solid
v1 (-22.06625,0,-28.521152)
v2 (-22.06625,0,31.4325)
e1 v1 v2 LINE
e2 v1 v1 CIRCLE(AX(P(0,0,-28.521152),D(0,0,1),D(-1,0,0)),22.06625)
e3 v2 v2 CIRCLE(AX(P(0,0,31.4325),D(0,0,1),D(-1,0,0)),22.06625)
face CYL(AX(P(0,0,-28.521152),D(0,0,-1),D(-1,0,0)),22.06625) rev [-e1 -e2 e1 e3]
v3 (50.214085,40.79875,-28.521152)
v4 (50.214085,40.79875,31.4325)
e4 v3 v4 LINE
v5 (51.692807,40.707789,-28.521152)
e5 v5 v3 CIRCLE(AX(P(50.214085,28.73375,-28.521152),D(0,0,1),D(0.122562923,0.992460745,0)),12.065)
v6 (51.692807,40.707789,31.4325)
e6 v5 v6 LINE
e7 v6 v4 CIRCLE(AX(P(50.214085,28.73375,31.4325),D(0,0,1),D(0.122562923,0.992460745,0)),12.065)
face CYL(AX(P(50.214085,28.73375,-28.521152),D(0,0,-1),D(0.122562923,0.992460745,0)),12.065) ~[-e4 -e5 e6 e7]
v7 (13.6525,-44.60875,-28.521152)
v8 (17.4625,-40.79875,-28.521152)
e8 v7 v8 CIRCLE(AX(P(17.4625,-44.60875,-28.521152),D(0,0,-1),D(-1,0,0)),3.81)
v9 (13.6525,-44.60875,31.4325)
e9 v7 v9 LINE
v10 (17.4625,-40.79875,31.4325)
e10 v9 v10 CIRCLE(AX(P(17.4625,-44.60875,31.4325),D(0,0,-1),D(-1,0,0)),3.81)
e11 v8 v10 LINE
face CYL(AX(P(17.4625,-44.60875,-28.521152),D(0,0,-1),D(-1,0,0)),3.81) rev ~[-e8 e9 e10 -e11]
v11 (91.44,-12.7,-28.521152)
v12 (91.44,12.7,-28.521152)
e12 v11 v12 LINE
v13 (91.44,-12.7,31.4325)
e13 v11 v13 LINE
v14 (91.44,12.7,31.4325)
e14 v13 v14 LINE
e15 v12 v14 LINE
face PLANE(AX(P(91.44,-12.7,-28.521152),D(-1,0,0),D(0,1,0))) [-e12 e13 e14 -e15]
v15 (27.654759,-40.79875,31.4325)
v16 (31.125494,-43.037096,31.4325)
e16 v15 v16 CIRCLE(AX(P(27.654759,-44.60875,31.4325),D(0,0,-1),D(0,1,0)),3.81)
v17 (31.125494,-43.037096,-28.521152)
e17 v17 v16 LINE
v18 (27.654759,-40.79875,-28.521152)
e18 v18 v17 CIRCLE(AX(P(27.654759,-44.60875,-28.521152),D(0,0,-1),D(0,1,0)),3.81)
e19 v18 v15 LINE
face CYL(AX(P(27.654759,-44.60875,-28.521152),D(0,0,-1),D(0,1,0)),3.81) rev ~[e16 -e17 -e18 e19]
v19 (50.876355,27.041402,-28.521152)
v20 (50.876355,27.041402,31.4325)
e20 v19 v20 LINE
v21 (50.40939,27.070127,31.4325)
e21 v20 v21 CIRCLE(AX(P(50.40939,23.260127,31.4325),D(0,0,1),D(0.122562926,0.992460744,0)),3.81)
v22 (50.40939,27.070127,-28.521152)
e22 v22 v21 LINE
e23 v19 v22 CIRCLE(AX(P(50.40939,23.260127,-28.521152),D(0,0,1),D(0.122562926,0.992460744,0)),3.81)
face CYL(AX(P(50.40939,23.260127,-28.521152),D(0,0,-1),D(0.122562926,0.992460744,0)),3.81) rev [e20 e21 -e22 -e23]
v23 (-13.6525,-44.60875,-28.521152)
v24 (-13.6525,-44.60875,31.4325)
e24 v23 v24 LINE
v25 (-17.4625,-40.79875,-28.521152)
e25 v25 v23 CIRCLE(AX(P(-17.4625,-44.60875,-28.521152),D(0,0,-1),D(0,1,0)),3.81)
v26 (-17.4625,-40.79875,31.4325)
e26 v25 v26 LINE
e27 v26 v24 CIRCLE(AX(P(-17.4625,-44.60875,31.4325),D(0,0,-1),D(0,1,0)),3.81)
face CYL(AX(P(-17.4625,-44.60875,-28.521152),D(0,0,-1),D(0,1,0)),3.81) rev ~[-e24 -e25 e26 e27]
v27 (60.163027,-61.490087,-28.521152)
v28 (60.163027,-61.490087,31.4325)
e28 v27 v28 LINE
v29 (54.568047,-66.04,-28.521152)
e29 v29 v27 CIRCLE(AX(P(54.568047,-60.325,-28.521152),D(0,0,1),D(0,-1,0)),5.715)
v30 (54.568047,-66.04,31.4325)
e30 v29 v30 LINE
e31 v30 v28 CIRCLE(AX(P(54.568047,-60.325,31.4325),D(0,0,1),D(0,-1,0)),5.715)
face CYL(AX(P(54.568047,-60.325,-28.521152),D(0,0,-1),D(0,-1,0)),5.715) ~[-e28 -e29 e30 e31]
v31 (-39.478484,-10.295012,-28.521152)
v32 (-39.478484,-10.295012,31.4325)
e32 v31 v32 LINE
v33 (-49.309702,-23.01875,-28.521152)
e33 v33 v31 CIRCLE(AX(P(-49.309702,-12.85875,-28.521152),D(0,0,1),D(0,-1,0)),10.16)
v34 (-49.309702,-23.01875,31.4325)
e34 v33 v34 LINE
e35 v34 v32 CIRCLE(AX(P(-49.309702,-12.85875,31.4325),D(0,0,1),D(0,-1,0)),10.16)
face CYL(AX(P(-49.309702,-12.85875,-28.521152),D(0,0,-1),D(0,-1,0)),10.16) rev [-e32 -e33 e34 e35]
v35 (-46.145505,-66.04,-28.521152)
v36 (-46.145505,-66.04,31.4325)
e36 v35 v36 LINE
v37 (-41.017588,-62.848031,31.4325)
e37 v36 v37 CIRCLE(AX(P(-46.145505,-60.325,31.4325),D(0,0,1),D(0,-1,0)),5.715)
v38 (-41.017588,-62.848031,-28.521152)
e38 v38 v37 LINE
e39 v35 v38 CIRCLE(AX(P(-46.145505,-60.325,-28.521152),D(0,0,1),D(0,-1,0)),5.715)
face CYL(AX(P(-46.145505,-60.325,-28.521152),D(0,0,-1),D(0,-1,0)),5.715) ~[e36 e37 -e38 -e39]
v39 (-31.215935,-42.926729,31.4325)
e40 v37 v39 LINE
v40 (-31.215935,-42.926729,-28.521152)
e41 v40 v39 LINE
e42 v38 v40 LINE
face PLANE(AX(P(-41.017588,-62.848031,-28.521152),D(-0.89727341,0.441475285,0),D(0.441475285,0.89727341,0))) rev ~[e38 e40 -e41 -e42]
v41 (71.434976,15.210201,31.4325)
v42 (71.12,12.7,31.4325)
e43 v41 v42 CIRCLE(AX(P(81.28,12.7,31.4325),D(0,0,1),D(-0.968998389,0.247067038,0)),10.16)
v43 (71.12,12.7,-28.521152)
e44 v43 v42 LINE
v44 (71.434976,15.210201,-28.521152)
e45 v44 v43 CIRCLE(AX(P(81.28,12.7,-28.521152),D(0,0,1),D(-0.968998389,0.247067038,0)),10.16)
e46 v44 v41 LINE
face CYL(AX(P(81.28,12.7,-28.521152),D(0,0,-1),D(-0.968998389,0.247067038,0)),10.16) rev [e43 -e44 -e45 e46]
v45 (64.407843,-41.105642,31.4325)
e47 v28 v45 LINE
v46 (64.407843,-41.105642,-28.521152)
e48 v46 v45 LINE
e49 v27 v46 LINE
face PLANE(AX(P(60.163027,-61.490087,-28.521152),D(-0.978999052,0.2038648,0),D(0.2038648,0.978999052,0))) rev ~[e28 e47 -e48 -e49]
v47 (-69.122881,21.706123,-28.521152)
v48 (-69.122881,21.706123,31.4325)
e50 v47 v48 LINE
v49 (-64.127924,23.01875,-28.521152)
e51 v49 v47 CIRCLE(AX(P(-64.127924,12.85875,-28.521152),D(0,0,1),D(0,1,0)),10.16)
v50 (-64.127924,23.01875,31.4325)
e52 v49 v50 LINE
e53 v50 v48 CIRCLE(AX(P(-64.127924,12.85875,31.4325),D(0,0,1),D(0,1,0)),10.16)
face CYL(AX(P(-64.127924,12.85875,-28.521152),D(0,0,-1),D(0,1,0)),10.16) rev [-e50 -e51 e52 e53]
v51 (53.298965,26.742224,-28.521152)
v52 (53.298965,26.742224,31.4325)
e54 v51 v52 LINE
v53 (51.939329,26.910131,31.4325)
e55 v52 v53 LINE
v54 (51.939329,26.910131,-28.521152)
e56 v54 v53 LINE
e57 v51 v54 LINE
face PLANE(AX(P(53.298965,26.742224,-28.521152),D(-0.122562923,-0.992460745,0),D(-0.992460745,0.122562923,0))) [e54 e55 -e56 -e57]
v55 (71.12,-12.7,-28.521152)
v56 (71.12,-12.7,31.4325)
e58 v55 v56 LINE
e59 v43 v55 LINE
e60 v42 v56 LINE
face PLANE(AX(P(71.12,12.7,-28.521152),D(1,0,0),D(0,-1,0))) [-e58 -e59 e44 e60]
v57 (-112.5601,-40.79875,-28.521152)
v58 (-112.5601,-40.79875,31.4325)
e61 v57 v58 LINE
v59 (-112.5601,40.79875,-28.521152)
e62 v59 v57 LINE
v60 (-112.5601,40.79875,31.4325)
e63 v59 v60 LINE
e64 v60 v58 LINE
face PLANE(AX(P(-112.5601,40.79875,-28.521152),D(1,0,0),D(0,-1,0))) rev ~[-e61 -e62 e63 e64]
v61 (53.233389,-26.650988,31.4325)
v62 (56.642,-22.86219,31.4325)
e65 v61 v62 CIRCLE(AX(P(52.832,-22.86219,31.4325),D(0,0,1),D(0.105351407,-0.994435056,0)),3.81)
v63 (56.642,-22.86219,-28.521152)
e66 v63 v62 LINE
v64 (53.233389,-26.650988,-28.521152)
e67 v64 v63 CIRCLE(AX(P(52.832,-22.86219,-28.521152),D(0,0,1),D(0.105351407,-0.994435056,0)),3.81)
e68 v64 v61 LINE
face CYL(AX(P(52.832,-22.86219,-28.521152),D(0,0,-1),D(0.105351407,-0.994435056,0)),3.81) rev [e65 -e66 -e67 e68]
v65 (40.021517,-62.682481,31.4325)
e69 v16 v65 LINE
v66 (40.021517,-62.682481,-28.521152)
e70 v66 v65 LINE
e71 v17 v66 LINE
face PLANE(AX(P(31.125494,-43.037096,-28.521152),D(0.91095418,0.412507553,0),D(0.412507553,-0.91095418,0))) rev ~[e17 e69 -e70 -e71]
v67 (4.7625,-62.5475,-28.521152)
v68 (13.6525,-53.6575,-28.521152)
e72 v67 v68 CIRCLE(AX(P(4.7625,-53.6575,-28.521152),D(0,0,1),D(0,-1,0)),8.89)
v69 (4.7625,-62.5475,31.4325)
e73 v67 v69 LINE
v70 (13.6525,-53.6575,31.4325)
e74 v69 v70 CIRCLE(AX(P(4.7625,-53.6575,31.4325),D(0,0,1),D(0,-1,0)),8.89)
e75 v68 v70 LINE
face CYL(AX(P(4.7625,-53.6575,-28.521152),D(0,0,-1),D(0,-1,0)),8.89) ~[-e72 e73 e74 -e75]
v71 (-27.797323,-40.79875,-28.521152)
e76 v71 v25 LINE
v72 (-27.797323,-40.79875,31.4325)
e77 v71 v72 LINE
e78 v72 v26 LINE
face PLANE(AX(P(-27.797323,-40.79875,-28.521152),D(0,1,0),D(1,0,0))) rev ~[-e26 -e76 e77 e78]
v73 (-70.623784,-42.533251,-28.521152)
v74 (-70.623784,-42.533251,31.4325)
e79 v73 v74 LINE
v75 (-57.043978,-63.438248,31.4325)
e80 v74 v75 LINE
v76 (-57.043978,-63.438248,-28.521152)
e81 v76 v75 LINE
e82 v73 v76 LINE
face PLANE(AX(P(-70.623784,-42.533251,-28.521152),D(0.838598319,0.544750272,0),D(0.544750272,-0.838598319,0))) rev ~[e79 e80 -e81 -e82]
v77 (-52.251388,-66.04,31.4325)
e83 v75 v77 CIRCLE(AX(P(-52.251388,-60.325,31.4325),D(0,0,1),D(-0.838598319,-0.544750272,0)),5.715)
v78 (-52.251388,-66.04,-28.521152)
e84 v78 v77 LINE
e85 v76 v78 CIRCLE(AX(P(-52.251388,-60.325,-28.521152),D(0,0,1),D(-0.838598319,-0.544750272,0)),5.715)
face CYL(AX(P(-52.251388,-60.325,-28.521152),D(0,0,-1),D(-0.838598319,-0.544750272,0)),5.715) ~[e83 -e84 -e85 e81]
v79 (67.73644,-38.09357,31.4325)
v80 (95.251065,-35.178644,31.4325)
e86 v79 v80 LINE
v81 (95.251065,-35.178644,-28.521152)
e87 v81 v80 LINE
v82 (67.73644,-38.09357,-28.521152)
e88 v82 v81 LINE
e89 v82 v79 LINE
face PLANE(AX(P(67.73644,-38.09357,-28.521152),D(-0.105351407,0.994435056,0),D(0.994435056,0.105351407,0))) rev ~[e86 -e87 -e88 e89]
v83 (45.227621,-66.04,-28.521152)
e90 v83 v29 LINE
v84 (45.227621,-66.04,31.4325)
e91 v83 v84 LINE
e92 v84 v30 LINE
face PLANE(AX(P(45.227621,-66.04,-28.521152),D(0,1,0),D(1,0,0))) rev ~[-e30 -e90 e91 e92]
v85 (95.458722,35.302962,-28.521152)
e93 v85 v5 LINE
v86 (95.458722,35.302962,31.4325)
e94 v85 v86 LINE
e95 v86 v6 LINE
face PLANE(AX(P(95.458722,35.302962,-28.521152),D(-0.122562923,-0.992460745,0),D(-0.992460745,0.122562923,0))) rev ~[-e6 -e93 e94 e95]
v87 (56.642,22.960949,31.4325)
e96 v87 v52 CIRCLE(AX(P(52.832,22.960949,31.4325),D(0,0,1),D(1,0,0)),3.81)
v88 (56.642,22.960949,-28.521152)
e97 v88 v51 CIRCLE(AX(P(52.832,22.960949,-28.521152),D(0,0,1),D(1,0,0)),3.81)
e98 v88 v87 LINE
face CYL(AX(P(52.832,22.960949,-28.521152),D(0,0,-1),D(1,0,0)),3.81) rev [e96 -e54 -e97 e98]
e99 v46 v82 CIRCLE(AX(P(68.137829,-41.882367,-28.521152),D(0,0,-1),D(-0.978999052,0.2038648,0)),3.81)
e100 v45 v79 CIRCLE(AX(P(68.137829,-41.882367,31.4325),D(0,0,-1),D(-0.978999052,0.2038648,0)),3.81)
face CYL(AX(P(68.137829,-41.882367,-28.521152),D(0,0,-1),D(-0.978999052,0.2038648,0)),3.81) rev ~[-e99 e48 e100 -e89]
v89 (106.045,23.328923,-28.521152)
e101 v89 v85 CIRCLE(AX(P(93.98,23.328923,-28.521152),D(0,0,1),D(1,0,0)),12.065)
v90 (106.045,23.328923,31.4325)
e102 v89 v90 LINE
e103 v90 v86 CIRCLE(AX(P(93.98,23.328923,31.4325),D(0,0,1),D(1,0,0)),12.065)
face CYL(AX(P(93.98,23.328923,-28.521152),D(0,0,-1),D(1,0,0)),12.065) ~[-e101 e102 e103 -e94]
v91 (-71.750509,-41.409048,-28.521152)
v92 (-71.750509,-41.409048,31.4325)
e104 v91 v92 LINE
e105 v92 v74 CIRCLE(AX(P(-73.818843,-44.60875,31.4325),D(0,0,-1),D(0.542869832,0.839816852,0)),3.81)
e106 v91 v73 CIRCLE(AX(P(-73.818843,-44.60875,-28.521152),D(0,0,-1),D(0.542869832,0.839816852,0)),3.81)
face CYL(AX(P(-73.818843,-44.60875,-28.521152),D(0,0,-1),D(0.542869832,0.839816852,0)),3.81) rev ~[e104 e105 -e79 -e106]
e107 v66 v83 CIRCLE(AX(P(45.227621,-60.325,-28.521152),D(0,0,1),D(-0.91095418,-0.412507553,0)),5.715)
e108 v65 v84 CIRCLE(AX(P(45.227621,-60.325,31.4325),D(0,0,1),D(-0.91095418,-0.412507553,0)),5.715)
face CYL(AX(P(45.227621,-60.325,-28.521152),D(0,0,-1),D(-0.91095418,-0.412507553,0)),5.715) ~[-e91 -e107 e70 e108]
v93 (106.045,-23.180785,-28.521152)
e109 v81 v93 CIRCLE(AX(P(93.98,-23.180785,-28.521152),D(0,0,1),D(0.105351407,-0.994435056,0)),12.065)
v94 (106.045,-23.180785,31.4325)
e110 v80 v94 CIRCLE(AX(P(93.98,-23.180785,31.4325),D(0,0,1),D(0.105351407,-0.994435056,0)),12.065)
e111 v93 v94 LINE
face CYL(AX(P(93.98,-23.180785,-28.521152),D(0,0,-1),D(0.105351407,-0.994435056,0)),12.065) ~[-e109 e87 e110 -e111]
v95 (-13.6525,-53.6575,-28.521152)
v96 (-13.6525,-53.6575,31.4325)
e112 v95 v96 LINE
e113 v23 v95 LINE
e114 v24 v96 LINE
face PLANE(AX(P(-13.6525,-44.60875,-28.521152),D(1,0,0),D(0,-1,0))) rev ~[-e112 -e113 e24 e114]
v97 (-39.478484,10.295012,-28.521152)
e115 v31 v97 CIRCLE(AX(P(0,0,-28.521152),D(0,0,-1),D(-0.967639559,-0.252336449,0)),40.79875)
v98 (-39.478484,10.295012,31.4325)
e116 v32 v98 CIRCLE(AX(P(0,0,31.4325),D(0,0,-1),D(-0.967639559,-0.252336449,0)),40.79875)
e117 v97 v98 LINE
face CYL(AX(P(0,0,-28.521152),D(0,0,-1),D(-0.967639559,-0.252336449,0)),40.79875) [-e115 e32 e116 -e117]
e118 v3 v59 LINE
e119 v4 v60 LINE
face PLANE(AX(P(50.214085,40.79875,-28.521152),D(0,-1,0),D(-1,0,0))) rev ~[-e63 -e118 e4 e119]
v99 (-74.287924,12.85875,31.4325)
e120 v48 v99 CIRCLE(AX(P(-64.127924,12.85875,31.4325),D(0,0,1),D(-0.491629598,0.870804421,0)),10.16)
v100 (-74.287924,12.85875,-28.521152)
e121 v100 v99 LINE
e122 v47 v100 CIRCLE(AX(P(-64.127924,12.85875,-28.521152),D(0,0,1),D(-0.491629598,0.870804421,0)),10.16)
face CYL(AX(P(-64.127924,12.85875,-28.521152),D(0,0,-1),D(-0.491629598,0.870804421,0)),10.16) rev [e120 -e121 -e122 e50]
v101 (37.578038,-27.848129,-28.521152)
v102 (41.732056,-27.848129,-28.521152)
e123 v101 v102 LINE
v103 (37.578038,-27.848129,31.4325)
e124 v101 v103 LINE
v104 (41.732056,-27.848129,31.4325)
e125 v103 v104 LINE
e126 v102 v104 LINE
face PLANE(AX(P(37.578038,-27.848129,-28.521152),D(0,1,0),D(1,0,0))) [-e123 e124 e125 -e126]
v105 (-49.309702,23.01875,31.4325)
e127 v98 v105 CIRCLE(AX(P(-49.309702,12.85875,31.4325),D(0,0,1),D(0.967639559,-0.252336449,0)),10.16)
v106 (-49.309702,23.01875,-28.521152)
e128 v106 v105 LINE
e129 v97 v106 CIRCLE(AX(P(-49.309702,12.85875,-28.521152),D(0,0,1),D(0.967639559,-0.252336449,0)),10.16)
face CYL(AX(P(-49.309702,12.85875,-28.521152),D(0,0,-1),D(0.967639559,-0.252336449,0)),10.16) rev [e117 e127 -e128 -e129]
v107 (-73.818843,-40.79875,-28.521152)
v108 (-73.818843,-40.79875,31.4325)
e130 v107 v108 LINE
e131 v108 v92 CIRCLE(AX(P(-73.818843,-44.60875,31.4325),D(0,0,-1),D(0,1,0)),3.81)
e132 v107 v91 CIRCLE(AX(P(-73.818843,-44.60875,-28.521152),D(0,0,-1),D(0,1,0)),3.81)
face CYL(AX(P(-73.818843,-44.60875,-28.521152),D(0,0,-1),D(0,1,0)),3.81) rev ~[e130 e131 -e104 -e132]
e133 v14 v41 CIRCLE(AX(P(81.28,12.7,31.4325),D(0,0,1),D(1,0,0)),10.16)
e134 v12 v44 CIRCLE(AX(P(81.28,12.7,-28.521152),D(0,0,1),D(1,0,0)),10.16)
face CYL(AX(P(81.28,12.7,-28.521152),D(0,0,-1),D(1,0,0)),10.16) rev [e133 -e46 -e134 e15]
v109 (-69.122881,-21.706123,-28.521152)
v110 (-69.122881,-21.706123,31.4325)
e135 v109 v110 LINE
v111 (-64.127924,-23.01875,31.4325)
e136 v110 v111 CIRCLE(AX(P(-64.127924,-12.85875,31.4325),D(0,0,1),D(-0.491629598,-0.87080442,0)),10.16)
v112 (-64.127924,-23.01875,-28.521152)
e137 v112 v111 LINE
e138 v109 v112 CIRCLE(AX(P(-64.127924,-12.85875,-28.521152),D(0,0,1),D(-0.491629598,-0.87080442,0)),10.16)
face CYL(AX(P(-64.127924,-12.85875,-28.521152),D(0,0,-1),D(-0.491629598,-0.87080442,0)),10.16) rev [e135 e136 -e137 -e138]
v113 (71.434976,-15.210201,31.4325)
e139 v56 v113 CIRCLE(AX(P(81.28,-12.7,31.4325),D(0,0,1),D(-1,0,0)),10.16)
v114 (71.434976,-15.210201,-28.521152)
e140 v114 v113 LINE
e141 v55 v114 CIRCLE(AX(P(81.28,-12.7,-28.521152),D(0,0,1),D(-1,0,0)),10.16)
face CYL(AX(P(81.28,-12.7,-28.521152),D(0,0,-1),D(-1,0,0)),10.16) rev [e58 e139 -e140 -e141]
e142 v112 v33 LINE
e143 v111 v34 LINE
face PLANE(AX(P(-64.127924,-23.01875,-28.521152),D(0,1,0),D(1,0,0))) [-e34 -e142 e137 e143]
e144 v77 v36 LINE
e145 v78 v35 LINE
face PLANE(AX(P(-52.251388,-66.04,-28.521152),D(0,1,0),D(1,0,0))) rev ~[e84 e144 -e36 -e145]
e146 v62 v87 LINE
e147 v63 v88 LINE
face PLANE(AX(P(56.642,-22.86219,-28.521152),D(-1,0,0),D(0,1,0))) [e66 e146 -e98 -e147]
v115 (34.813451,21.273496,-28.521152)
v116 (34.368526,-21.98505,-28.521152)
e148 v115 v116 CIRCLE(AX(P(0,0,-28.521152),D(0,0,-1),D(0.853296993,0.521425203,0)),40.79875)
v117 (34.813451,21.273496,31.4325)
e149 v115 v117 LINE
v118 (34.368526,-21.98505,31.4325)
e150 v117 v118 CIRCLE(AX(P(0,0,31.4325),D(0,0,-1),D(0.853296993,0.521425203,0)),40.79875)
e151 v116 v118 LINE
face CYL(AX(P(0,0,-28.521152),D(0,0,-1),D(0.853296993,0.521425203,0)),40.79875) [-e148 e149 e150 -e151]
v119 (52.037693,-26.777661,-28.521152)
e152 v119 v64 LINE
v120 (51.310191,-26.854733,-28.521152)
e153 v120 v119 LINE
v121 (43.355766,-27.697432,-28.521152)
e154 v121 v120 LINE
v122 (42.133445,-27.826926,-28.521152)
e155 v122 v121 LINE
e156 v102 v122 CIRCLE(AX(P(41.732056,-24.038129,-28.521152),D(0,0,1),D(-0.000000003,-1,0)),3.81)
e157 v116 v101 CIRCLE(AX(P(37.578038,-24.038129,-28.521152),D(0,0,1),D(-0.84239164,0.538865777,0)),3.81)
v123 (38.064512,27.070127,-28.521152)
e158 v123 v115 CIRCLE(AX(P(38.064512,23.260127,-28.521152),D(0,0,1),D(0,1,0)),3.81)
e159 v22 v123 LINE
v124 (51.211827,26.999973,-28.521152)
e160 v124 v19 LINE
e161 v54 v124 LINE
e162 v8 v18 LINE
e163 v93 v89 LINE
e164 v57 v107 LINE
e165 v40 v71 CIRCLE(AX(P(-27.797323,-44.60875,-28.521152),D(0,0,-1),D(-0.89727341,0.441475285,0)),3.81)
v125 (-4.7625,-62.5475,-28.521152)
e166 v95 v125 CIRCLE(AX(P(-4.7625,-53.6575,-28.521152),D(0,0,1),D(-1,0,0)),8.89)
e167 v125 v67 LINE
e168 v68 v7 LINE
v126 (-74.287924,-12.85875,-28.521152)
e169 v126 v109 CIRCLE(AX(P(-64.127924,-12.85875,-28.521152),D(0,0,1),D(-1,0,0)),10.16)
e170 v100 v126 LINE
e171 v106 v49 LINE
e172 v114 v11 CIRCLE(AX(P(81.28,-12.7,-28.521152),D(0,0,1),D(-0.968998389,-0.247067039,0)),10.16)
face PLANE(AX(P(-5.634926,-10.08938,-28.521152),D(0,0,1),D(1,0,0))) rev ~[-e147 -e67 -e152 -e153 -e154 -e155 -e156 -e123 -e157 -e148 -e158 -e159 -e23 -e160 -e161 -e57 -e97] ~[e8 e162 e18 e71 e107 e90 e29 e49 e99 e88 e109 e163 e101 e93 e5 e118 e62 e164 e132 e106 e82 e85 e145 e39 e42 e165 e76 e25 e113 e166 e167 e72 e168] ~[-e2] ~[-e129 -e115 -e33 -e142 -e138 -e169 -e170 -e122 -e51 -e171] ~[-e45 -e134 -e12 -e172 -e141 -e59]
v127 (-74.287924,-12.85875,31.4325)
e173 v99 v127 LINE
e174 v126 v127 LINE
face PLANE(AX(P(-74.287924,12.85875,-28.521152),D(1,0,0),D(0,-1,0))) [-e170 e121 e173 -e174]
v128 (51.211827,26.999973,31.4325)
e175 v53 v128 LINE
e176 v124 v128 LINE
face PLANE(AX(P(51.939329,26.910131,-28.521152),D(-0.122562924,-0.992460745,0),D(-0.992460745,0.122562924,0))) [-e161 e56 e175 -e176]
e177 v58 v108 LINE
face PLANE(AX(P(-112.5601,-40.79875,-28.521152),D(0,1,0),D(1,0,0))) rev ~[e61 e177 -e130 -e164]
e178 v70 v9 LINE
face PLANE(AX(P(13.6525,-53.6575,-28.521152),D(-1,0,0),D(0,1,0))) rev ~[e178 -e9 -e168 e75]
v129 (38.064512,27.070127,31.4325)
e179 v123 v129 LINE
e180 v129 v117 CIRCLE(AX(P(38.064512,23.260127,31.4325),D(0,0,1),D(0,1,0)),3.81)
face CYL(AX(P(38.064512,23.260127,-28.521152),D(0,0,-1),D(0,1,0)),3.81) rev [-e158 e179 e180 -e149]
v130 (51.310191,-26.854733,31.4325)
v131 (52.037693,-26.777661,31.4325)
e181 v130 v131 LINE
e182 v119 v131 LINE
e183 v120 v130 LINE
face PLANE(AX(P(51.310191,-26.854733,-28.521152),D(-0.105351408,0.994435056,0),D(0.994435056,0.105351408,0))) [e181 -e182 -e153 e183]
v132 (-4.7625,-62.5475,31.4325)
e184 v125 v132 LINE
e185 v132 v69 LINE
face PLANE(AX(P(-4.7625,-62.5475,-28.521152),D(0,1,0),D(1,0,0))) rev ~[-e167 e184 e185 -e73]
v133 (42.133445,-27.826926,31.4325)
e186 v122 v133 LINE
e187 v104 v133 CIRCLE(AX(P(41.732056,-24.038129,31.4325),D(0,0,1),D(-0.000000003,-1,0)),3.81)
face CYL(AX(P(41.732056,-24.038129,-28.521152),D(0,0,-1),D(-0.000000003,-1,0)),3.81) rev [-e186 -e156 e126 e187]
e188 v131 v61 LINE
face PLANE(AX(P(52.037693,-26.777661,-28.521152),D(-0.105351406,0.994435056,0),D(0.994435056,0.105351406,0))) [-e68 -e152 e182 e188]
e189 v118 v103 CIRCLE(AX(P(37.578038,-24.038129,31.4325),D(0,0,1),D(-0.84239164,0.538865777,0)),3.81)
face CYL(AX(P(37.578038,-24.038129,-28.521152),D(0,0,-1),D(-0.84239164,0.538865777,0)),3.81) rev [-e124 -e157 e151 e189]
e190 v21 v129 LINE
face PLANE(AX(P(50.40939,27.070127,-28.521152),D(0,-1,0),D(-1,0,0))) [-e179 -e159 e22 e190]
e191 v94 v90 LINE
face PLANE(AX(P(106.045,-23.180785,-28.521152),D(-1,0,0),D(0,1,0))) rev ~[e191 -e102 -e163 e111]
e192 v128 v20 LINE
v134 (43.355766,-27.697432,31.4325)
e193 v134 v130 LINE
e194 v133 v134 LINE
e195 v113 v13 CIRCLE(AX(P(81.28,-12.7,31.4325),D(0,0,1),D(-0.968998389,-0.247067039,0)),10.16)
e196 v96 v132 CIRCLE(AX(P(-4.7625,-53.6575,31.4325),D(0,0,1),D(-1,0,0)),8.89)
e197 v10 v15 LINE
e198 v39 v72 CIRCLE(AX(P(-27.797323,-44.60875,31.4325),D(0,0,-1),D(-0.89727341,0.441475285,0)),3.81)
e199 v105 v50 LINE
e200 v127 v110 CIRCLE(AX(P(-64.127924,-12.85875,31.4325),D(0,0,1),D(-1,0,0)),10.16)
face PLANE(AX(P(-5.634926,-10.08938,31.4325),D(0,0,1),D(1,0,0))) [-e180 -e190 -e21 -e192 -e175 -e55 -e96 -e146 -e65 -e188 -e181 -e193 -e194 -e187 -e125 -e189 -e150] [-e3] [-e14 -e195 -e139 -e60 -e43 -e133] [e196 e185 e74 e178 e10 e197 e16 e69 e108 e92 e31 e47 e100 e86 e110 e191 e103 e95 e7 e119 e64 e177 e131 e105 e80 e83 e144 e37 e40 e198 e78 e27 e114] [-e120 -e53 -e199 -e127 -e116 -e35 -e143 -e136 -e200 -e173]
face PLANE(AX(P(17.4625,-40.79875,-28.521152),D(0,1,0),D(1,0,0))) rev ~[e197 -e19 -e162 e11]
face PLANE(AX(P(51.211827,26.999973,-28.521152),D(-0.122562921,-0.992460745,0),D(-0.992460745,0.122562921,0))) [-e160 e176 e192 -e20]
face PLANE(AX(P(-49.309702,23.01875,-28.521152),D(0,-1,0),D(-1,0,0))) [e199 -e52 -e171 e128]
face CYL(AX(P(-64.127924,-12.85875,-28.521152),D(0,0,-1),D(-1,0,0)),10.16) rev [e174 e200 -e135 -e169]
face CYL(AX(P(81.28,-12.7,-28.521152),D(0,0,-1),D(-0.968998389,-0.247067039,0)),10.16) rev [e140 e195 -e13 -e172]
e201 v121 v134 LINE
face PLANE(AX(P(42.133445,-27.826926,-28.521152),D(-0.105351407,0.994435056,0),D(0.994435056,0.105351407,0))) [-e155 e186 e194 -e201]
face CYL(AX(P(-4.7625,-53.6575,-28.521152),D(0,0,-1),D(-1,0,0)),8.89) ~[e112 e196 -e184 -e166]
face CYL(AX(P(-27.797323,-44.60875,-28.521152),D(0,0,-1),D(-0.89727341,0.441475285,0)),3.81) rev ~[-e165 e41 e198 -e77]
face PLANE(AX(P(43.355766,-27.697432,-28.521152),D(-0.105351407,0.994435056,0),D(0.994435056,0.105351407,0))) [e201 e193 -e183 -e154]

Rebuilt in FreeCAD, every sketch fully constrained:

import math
import FreeCAD as App
import Part
import Sketcher
Q = App.Units.Quantity

doc = App.newDocument("Part")
params = doc.addObject("Spreadsheet::Sheet", "Params")
for row, (alias, value) in enumerate([
    ("sketch1_radius", "0.4 in"),
    ("sketch1_height", "1 in"),
    ("sketch1_radius2", "0.15 in"),
    ("sketch1_radius3", "0.35 in"),
    ("sketch1_radius4", "0.225 in"),
    ("pad1_length", "1.2375 in"),
    ("pad1_length2", "28.521152 mm"),
], start=1):
    params.set(f"A{row}", alias)
    params.set(f"B{row}", "=" + value)
    params.setAlias(f"B{row}", alias)

body = doc.addObject("PartDesign::Body", "Body")

# Sketch on XY plane
sketch1 = body.newObject("Sketcher::SketchObject", "Sketch")
sketch1.AttachmentSupport = (doc.getObject("XY_Plane"), [""])
sketch1.MapMode = "FlatFace"
sketch1.addGeometry(Part.LineSegment(App.Vector(-112.56, 40.8, 0), App.Vector(-112.56, -40.8, 0)), False)
sketch1.addGeometry(Part.LineSegment(App.Vector(-112.56, -40.8, 0), App.Vector(-73.82, -40.8, 0)), False)
sketch1.addGeometry(Part.ArcOfCircle(Part.Circle(App.Vector(-73.82, -44.61, 0), App.Vector(0, 0, 1), 3.81), math.radians(57), math.radians(90)), False)
sketch1.addGeometry(Part.ArcOfCircle(Part.Circle(App.Vector(-73.82, -44.61, 0), App.Vector(0, 0, 1), 3.81), math.radians(33), math.radians(57)), False)
sketch1.addGeometry(Part.LineSegment(App.Vector(-70.62, -42.53, 0), App.Vector(-57.04, -63.44, 0)), False)
sketch1.addGeometry(Part.ArcOfCircle(Part.Circle(App.Vector(-52.25, -60.33, 0), App.Vector(0, 0, 1), 5.71), math.radians(-147), math.radians(-90)), False)
sketch1.addGeometry(Part.LineSegment(App.Vector(-52.25, -66.04, 0), App.Vector(-46.15, -66.04, 0)), False)
sketch1.addGeometry(Part.ArcOfCircle(Part.Circle(App.Vector(-46.15, -60.32, 0), App.Vector(0, 0, 1), 5.72), math.radians(-90), math.radians(-26)), False)
sketch1.addGeometry(Part.LineSegment(App.Vector(-41.02, -62.85, 0), App.Vector(-31.22, -42.93, 0)), False)
sketch1.addGeometry(Part.ArcOfCircle(Part.Circle(App.Vector(-27.8, -44.61, 0), App.Vector(0, 0, 1), 3.81), math.radians(90), math.radians(154)), False)
sketch1.addGeometry(Part.LineSegment(App.Vector(-27.8, -40.8, 0), App.Vector(-17.46, -40.8, 0)), False)
sketch1.addGeometry(Part.ArcOfCircle(Part.Circle(App.Vector(-17.46, -44.61, 0), App.Vector(0, 0, 1), 3.81), math.radians(0), math.radians(90)), False)
sketch1.addGeometry(Part.LineSegment(App.Vector(-13.65, -44.61, 0), App.Vector(-13.65, -53.66, 0)), False)
sketch1.addGeometry(Part.ArcOfCircle(Part.Circle(App.Vector(-4.76, -53.66, 0), App.Vector(0, 0, 1), 8.89), math.radians(180), math.radians(270)), False)
sketch1.addGeometry(Part.LineSegment(App.Vector(-4.76, -62.55, 0), App.Vector(4.76, -62.55, 0)), False)
sketch1.addGeometry(Part.ArcOfCircle(Part.Circle(App.Vector(4.76, -53.66, 0), App.Vector(0, 0, 1), 8.89), math.radians(-90), math.radians(0)), False)
sketch1.addGeometry(Part.LineSegment(App.Vector(13.65, -53.66, 0), App.Vector(13.65, -44.61, 0)), False)
sketch1.addGeometry(Part.ArcOfCircle(Part.Circle(App.Vector(17.46, -44.61, 0), App.Vector(0, 0, 1), 3.81), math.radians(90), math.radians(180)), False)
sketch1.addGeometry(Part.LineSegment(App.Vector(17.46, -40.8, 0), App.Vector(27.65, -40.8, 0)), False)
sketch1.addGeometry(Part.ArcOfCircle(Part.Circle(App.Vector(27.65, -44.61, 0), App.Vector(0, 0, 1), 3.81), math.radians(24), math.radians(90)), False)
sketch1.addGeometry(Part.LineSegment(App.Vector(31.13, -43.04, 0), App.Vector(40.02, -62.68, 0)), False)
sketch1.addGeometry(Part.ArcOfCircle(Part.Circle(App.Vector(45.23, -60.33, 0), App.Vector(0, 0, 1), 5.71), math.radians(-156), math.radians(-90)), False)
sketch1.addGeometry(Part.LineSegment(App.Vector(45.23, -66.04, 0), App.Vector(54.57, -66.04, 0)), False)
sketch1.addGeometry(Part.ArcOfCircle(Part.Circle(App.Vector(54.57, -60.32, 0), App.Vector(0, 0, 1), 5.72), math.radians(-90), math.radians(-12)), False)
sketch1.addGeometry(Part.LineSegment(App.Vector(60.16, -61.49, 0), App.Vector(64.41, -41.11, 0)), False)
sketch1.addGeometry(Part.ArcOfCircle(Part.Circle(App.Vector(68.14, -41.88, 0), App.Vector(0, 0, 1), 3.81), math.radians(96), math.radians(168)), False)
sketch1.addGeometry(Part.LineSegment(App.Vector(67.74, -38.09, 0), App.Vector(95.25, -35.18, 0)), False)
sketch1.addGeometry(Part.ArcOfCircle(Part.Circle(App.Vector(93.98, -23.18, 0), App.Vector(0, 0, 1), 12.07), math.radians(-84), math.radians(0)), False)
sketch1.addGeometry(Part.LineSegment(App.Vector(106.05, -23.18, 0), App.Vector(106.05, 23.33, 0)), False)
sketch1.addGeometry(Part.ArcOfCircle(Part.Circle(App.Vector(93.98, 23.33, 0), App.Vector(0, 0, 1), 12.07), math.radians(0), math.radians(83)), False)
sketch1.addGeometry(Part.LineSegment(App.Vector(95.46, 35.3, 0), App.Vector(51.69, 40.71, 0)), False)
sketch1.addGeometry(Part.ArcOfCircle(Part.Circle(App.Vector(50.21, 28.73, 0), App.Vector(0, 0, 1), 12.07), math.radians(82.96), math.radians(90)), False)
sketch1.addGeometry(Part.LineSegment(App.Vector(50.21, 40.8, 0), App.Vector(-112.56, 40.8, 0)), False)
sketch1.addGeometry(Part.LineSegment(App.Vector(-64.13, 23.02, 0), App.Vector(-49.31, 23.02, 0)), False)
sketch1.addGeometry(Part.ArcOfCircle(Part.Circle(App.Vector(-49.31, 12.86, 0), App.Vector(0, 0, 1), 10.16), math.radians(-15), math.radians(90)), False)
sketch1.addGeometry(Part.ArcOfCircle(Part.Circle(App.Vector(0, 0, 0), App.Vector(0, 0, 1), 40.8), math.radians(165), math.radians(195)), False)
sketch1.addGeometry(Part.ArcOfCircle(Part.Circle(App.Vector(-49.31, -12.86, 0), App.Vector(0, 0, 1), 10.16), math.radians(-90), math.radians(15)), False)
sketch1.addGeometry(Part.LineSegment(App.Vector(-49.31, -23.02, 0), App.Vector(-64.13, -23.02, 0)), False)
sketch1.addGeometry(Part.ArcOfCircle(Part.Circle(App.Vector(-64.13, -12.86, 0), App.Vector(0, 0, 1), 10.16), math.radians(-119), math.radians(-90)), False)
sketch1.addGeometry(Part.ArcOfCircle(Part.Circle(App.Vector(-64.13, -12.86, 0), App.Vector(0, 0, 1), 10.16), math.radians(180), math.radians(241)), False)
sketch1.addGeometry(Part.LineSegment(App.Vector(-74.29, -12.86, 0), App.Vector(-74.29, 12.86, 0)), False)
sketch1.addGeometry(Part.ArcOfCircle(Part.Circle(App.Vector(-64.13, 12.86, 0), App.Vector(0, 0, 1), 10.16), math.radians(119), math.radians(180)), False)
sketch1.addGeometry(Part.ArcOfCircle(Part.Circle(App.Vector(-64.13, 12.86, 0), App.Vector(0, 0, 1), 10.16), math.radians(90), math.radians(119)), False)
sketch1.addGeometry(Part.Circle(App.Vector(0, 0, 0), App.Vector(0, 0, 1), 22.07), False)
sketch1.addGeometry(Part.LineSegment(App.Vector(52.04, -26.78, 0), App.Vector(51.31, -26.85, 0)), False)
sketch1.addGeometry(Part.LineSegment(App.Vector(51.31, -26.85, 0), App.Vector(43.36, -27.7, 0)), False)
sketch1.addGeometry(Part.LineSegment(App.Vector(43.36, -27.7, 0), App.Vector(42.13, -27.83, 0)), False)
sketch1.addGeometry(Part.ArcOfCircle(Part.Circle(App.Vector(41.73, -24.04, 0), App.Vector(0, 0, 1), 3.81), math.radians(-90), math.radians(-83.95)), False)
sketch1.addGeometry(Part.LineSegment(App.Vector(41.73, -27.85, 0), App.Vector(37.58, -27.85, 0)), False)
sketch1.addGeometry(Part.ArcOfCircle(Part.Circle(App.Vector(37.58, -24.04, 0), App.Vector(0, 0, 1), 3.81), math.radians(147), math.radians(270)), False)
sketch1.addGeometry(Part.ArcOfCircle(Part.Circle(App.Vector(0, 0, 0), App.Vector(0, 0, 1), 40.8), math.radians(-33), math.radians(31)), False)
sketch1.addGeometry(Part.ArcOfCircle(Part.Circle(App.Vector(38.06, 23.26, 0), App.Vector(0, 0, 1), 3.81), math.radians(90), math.radians(211)), False)
sketch1.addGeometry(Part.LineSegment(App.Vector(38.06, 27.07, 0), App.Vector(50.41, 27.07, 0)), False)
sketch1.addGeometry(Part.ArcOfCircle(Part.Circle(App.Vector(50.41, 23.26, 0), App.Vector(0, 0, 1), 3.81), math.radians(82.96), math.radians(90)), False)
sketch1.addGeometry(Part.LineSegment(App.Vector(50.88, 27.04, 0), App.Vector(51.21, 27, 0)), False)
sketch1.addGeometry(Part.LineSegment(App.Vector(51.21, 27, 0), App.Vector(51.94, 26.91, 0)), False)
sketch1.addGeometry(Part.LineSegment(App.Vector(51.94, 26.91, 0), App.Vector(53.3, 26.74, 0)), False)
sketch1.addGeometry(Part.ArcOfCircle(Part.Circle(App.Vector(52.83, 22.96, 0), App.Vector(0, 0, 1), 3.81), math.radians(0), math.radians(83)), False)
sketch1.addGeometry(Part.LineSegment(App.Vector(56.64, 22.96, 0), App.Vector(56.64, -22.86, 0)), False)
sketch1.addGeometry(Part.ArcOfCircle(Part.Circle(App.Vector(52.83, -22.86, 0), App.Vector(0, 0, 1), 3.81), math.radians(-84), math.radians(0)), False)
sketch1.addGeometry(Part.LineSegment(App.Vector(53.23, -26.65, 0), App.Vector(52.04, -26.78, 0)), False)
sketch1.addGeometry(Part.LineSegment(App.Vector(71.12, -12.7, 0), App.Vector(71.12, 12.7, 0)), False)
sketch1.addGeometry(Part.ArcOfCircle(Part.Circle(App.Vector(81.28, 12.7, 0), App.Vector(0, 0, 1), 10.16), math.radians(165.7), math.radians(180)), False)
sketch1.addGeometry(Part.ArcOfCircle(Part.Circle(App.Vector(81.28, 12.7, 0), App.Vector(0, 0, 1), 10.16), math.radians(0), math.radians(166)), False)
sketch1.addGeometry(Part.LineSegment(App.Vector(91.44, 12.7, 0), App.Vector(91.44, -12.7, 0)), False)
sketch1.addGeometry(Part.ArcOfCircle(Part.Circle(App.Vector(81.28, -12.7, 0), App.Vector(0, 0, 1), 10.16), math.radians(-166), math.radians(0)), False)
sketch1.addGeometry(Part.ArcOfCircle(Part.Circle(App.Vector(81.28, -12.7, 0), App.Vector(0, 0, 1), 10.16), math.radians(-180), math.radians(-165.7)), False)
sketch1.addConstraint(Sketcher.Constraint("Coincident", 0, 2, 1, 1))
sketch1.addConstraint(Sketcher.Constraint("Tangent", 1, 2, 2, 2))
sketch1.addConstraint(Sketcher.Constraint("Tangent", 2, 1, 3, 2))
sketch1.addConstraint(Sketcher.Constraint("Tangent", 3, 1, 4, 1))
sketch1.addConstraint(Sketcher.Constraint("Tangent", 4, 2, 5, 1))
sketch1.addConstraint(Sketcher.Constraint("Tangent", 5, 2, 6, 1))
sketch1.addConstraint(Sketcher.Constraint("Tangent", 6, 2, 7, 1))
sketch1.addConstraint(Sketcher.Constraint("Tangent", 7, 2, 8, 1))
sketch1.addConstraint(Sketcher.Constraint("Tangent", 8, 2, 9, 2))
sketch1.addConstraint(Sketcher.Constraint("Tangent", 9, 1, 10, 1))
sketch1.addConstraint(Sketcher.Constraint("Tangent", 10, 2, 11, 2))
sketch1.addConstraint(Sketcher.Constraint("Tangent", 11, 1, 12, 1))
sketch1.addConstraint(Sketcher.Constraint("Tangent", 12, 2, 13, 1))
sketch1.addConstraint(Sketcher.Constraint("Tangent", 13, 2, 14, 1))
sketch1.addConstraint(Sketcher.Constraint("Tangent", 14, 2, 15, 1))
sketch1.addConstraint(Sketcher.Constraint("Tangent", 15, 2, 16, 1))
sketch1.addConstraint(Sketcher.Constraint("Tangent", 16, 2, 17, 2))
sketch1.addConstraint(Sketcher.Constraint("Tangent", 17, 1, 18, 1))
sketch1.addConstraint(Sketcher.Constraint("Tangent", 18, 2, 19, 2))
sketch1.addConstraint(Sketcher.Constraint("Tangent", 19, 1, 20, 1))
sketch1.addConstraint(Sketcher.Constraint("Tangent", 20, 2, 21, 1))
sketch1.addConstraint(Sketcher.Constraint("Tangent", 21, 2, 22, 1))
sketch1.addConstraint(Sketcher.Constraint("Tangent", 22, 2, 23, 1))
sketch1.addConstraint(Sketcher.Constraint("Tangent", 23, 2, 24, 1))
sketch1.addConstraint(Sketcher.Constraint("Tangent", 24, 2, 25, 2))
sketch1.addConstraint(Sketcher.Constraint("Tangent", 25, 1, 26, 1))
sketch1.addConstraint(Sketcher.Constraint("Tangent", 26, 2, 27, 1))
sketch1.addConstraint(Sketcher.Constraint("Tangent", 27, 2, 28, 1))
sketch1.addConstraint(Sketcher.Constraint("Tangent", 28, 2, 29, 1))
sketch1.addConstraint(Sketcher.Constraint("Tangent", 29, 2, 30, 1))
sketch1.addConstraint(Sketcher.Constraint("Tangent", 30, 2, 31, 1))
sketch1.addConstraint(Sketcher.Constraint("Tangent", 31, 2, 32, 1))
sketch1.addConstraint(Sketcher.Constraint("Coincident", 32, 2, 0, 1))
sketch1.addConstraint(Sketcher.Constraint("Tangent", 33, 2, 34, 2))
sketch1.addConstraint(Sketcher.Constraint("Tangent", 34, 1, 35, 1))
sketch1.addConstraint(Sketcher.Constraint("Tangent", 35, 2, 36, 2))
sketch1.addConstraint(Sketcher.Constraint("Tangent", 36, 1, 37, 1))
sketch1.addConstraint(Sketcher.Constraint("Tangent", 37, 2, 38, 2))
sketch1.addConstraint(Sketcher.Constraint("Tangent", 38, 1, 39, 2))
sketch1.addConstraint(Sketcher.Constraint("Tangent", 39, 1, 40, 1))
sketch1.addConstraint(Sketcher.Constraint("Tangent", 40, 2, 41, 2))
sketch1.addConstraint(Sketcher.Constraint("Tangent", 41, 1, 42, 2))
sketch1.addConstraint(Sketcher.Constraint("Tangent", 42, 1, 33, 1))
sketch1.addConstraint(Sketcher.Constraint("Coincident", 44, 2, 45, 1))
sketch1.addConstraint(Sketcher.Constraint("Coincident", 45, 2, 46, 1))
sketch1.addConstraint(Sketcher.Constraint("Tangent", 46, 2, 47, 2))
sketch1.addConstraint(Sketcher.Constraint("Tangent", 47, 1, 48, 1))
sketch1.addConstraint(Sketcher.Constraint("Tangent", 48, 2, 49, 2))
sketch1.addConstraint(Sketcher.Constraint("Tangent", 49, 1, 50, 1))
sketch1.addConstraint(Sketcher.Constraint("Tangent", 50, 2, 51, 2))
sketch1.addConstraint(Sketcher.Constraint("Tangent", 51, 1, 52, 1))
sketch1.addConstraint(Sketcher.Constraint("Tangent", 52, 2, 53, 2))
sketch1.addConstraint(Sketcher.Constraint("Tangent", 53, 1, 54, 1))
sketch1.addConstraint(Sketcher.Constraint("Coincident", 54, 2, 55, 1))
sketch1.addConstraint(Sketcher.Constraint("Coincident", 55, 2, 56, 1))
sketch1.addConstraint(Sketcher.Constraint("Tangent", 56, 2, 57, 2))
sketch1.addConstraint(Sketcher.Constraint("Tangent", 57, 1, 58, 1))
sketch1.addConstraint(Sketcher.Constraint("Tangent", 58, 2, 59, 2))
sketch1.addConstraint(Sketcher.Constraint("Tangent", 59, 1, 60, 1))
sketch1.addConstraint(Sketcher.Constraint("Coincident", 60, 2, 44, 1))
sketch1.addConstraint(Sketcher.Constraint("Tangent", 61, 2, 62, 2))
sketch1.addConstraint(Sketcher.Constraint("Tangent", 62, 1, 63, 2))
sketch1.addConstraint(Sketcher.Constraint("Tangent", 63, 1, 64, 1))
sketch1.addConstraint(Sketcher.Constraint("Tangent", 64, 2, 65, 2))
sketch1.addConstraint(Sketcher.Constraint("Tangent", 65, 1, 66, 2))
sketch1.addConstraint(Sketcher.Constraint("Tangent", 66, 1, 61, 1))
sketch1.addConstraint(Sketcher.Constraint("Vertical", 0))
sketch1.addConstraint(Sketcher.Constraint("Horizontal", 1))
sketch1.addConstraint(Sketcher.Constraint("Horizontal", 6))
sketch1.addConstraint(Sketcher.Constraint("Horizontal", 10))
sketch1.addConstraint(Sketcher.Constraint("Vertical", 12))
sketch1.addConstraint(Sketcher.Constraint("Horizontal", 14))
sketch1.addConstraint(Sketcher.Constraint("Vertical", 16))
sketch1.addConstraint(Sketcher.Constraint("Horizontal", 18))
sketch1.addConstraint(Sketcher.Constraint("Horizontal", 22))
sketch1.addConstraint(Sketcher.Constraint("Vertical", 28))
sketch1.addConstraint(Sketcher.Constraint("Horizontal", 32))
sketch1.addConstraint(Sketcher.Constraint("Horizontal", 33))
sketch1.addConstraint(Sketcher.Constraint("Horizontal", 37))
sketch1.addConstraint(Sketcher.Constraint("Vertical", 40))
sketch1.addConstraint(Sketcher.Constraint("Horizontal", 48))
sketch1.addConstraint(Sketcher.Constraint("Horizontal", 52))
sketch1.addConstraint(Sketcher.Constraint("Vertical", 58))
sketch1.addConstraint(Sketcher.Constraint("Vertical", 61))
sketch1.addConstraint(Sketcher.Constraint("Vertical", 64))
sketch1.addConstraint(Sketcher.Constraint("Coincident", 35, 3, -1, 1))
sketch1.addConstraint(Sketcher.Constraint("Coincident", 43, 3, -1, 1))
sketch1.addConstraint(Sketcher.Constraint("Coincident", 50, 3, -1, 1))
sketch1.addConstraint(Sketcher.Constraint("Equal", 2, 3))
sketch1.addConstraint(Sketcher.Constraint("Equal", 5, 7))
sketch1.addConstraint(Sketcher.Constraint("Equal", 3, 9))
sketch1.addConstraint(Sketcher.Constraint("Equal", 9, 11))
sketch1.addConstraint(Sketcher.Constraint("Equal", 13, 15))
sketch1.addConstraint(Sketcher.Constraint("Equal", 11, 17))
sketch1.addConstraint(Sketcher.Constraint("Equal", 17, 19))
sketch1.addConstraint(Sketcher.Constraint("Equal", 7, 21))
sketch1.addConstraint(Sketcher.Constraint("Equal", 21, 23))
sketch1.addConstraint(Sketcher.Constraint("Equal", 19, 25))
sketch1.addConstraint(Sketcher.Constraint("Equal", 27, 29))
sketch1.addConstraint(Sketcher.Constraint("Equal", 29, 31))
sketch1.addConstraint(Sketcher.Constraint("Equal", 34, 36))
sketch1.addConstraint(Sketcher.Constraint("Equal", 36, 38))
sketch1.addConstraint(Sketcher.Constraint("Equal", 38, 39))
sketch1.addConstraint(Sketcher.Constraint("Equal", 39, 41))
sketch1.addConstraint(Sketcher.Constraint("Equal", 41, 42))
sketch1.addConstraint(Sketcher.Constraint("Equal", 25, 47))
sketch1.addConstraint(Sketcher.Constraint("Equal", 47, 49))
sketch1.addConstraint(Sketcher.Constraint("Equal", 35, 50))
sketch1.addConstraint(Sketcher.Constraint("Equal", 49, 51))
sketch1.addConstraint(Sketcher.Constraint("Equal", 51, 53))
sketch1.addConstraint(Sketcher.Constraint("Equal", 53, 57))
sketch1.addConstraint(Sketcher.Constraint("Equal", 57, 59))
sketch1.addConstraint(Sketcher.Constraint("Equal", 42, 62))
sketch1.addConstraint(Sketcher.Constraint("Equal", 62, 63))
sketch1.addConstraint(Sketcher.Constraint("Equal", 63, 65))
sketch1.addConstraint(Sketcher.Constraint("Symmetric", 11, 3, 17, 3, -2))
sketch1.addConstraint(Sketcher.Constraint("Symmetric", 38, 1, 41, 1, -1))
sketch1.addConstraint(Sketcher.Constraint("Symmetric", 62, 1, 65, 1, -1))
sketch1.addConstraint(Sketcher.Constraint("Parallel", 26, 44))
sketch1.addConstraint(Sketcher.Constraint("Parallel", 44, 45))
sketch1.addConstraint(Sketcher.Constraint("Parallel", 45, 46))
sketch1.addConstraint(Sketcher.Constraint("Parallel", 30, 54))
sketch1.addConstraint(Sketcher.Constraint("Parallel", 54, 55))
sketch1.addConstraint(Sketcher.Constraint("Parallel", 55, 56))
sketch1.addConstraint(Sketcher.Constraint("Parallel", 46, 60))
sketch1.addConstraint(Sketcher.Constraint("Horizontal", 3, 3, 9, 3))
sketch1.addConstraint(Sketcher.Constraint("Horizontal", 7, 3, 21, 3))
sketch1.addConstraint(Sketcher.Constraint("Radius", 34, Q("0.4 in")))
sketch1.addConstraint(Sketcher.Constraint("DistanceY", 61, 1, 61, 2, Q("1 in")))
sketch1.addConstraint(Sketcher.Constraint("Radius", 2, Q("0.15 in")))
sketch1.addConstraint(Sketcher.Constraint("Radius", 13, Q("0.35 in")))
sketch1.addConstraint(Sketcher.Constraint("Radius", 5, Q("0.225 in")))
sketch1.addConstraint(Sketcher.Constraint("Radius", 27, Q("0.475 in")))
sketch1.addConstraint(Sketcher.Constraint("Diameter", 43, Q("1.7375 in")))
sketch1.addConstraint(Sketcher.Constraint("DistanceX", -1, 1, 27, 3, Q("3.7 in")))
sketch1.addConstraint(Sketcher.Constraint("DistanceX", -1, 1, 62, 3, Q("3.2 in")))
sketch1.addConstraint(Sketcher.Constraint("DistanceY", 5, 2, -1, 1, Q("2.6 in")))
sketch1.addConstraint(Sketcher.Constraint("DistanceX", 14, 1, 14, 2, Q("0.375 in")))
sketch1.addConstraint(Sketcher.Constraint("DistanceX", -1, 1, 57, 3, Q("2.08 in")))
sketch1.addConstraint(Sketcher.Constraint("DistanceY", 0, 2, 0, 1, Q("3.2125 in")))
sketch1.addConstraint(Sketcher.Constraint("DistanceY", 40, 1, 40, 2, Q("1.0125 in")))
sketch1.addConstraint(Sketcher.Constraint("Radius", 35, 40.79875))
sketch1.addConstraint(Sketcher.Constraint("DistanceY", 13, 3, -1, 1, Q("2.1125 in")))
sketch1.addConstraint(Sketcher.Constraint("DistanceX", 0, 2, -1, 1, Q("4.4315 in")))
sketch1.addConstraint(Sketcher.Constraint("Distance", 26, 27.668599))
sketch1.addConstraint(Sketcher.Constraint("DistanceX", 18, 1, 18, 2, 10.192259))
sketch1.addConstraint(Sketcher.Constraint("DistanceX", 33, 1, 33, 2, 14.818222))
sketch1.addConstraint(Sketcher.Constraint("DistanceX", 52, 1, 52, 2, 12.344878))
sketch1.addConstraint(Sketcher.Constraint("DistanceY", 12, 2, 12, 1, 9.04875))
sketch1.addConstraint(Sketcher.Constraint("DistanceY", 28, 1, 28, 2, 46.509708))
sketch1.addConstraint(Sketcher.Constraint("DistanceY", 58, 2, 58, 1, 45.823139))
sketch1.addConstraint(Sketcher.Constraint("DistanceY", -1, 1, 53, 1, 27.041402))
sketch1.addConstraint(Sketcher.Constraint("DistanceY", -1, 1, 62, 1, 15.210201))
sketch1.addConstraint(Sketcher.Constraint("Distance", 20, 21.565722))
sketch1.addConstraint(Sketcher.Constraint("Distance", 24, 20.821721))
sketch1.addConstraint(Sketcher.Constraint("Distance", 45, 7.998938))
sketch1.addConstraint(Sketcher.Constraint("Distance", 46, 1.229162))
sketch1.addConstraint(Sketcher.Constraint("Distance", 54, 0.33802))
sketch1.addConstraint(Sketcher.Constraint("Distance", 55, 0.733029))
sketch1.addConstraint(Sketcher.Constraint("DistanceX", 1, 1, 1, 2, 38.741257))
sketch1.addConstraint(Sketcher.Constraint("DistanceX", 6, 1, 6, 2, 6.105883))
sketch1.addConstraint(Sketcher.Constraint("DistanceX", 10, 1, 10, 2, 10.334823))
sketch1.addConstraint(Sketcher.Constraint("DistanceX", 22, 1, 22, 2, 9.340427))
sketch1.addConstraint(Sketcher.Constraint("DistanceX", 32, 2, 32, 1, 162.774185))
sketch1.addConstraint(Sketcher.Constraint("DistanceX", 48, 2, 48, 1, 4.154018))
sketch1.addConstraint(Sketcher.Constraint("DistanceX", 5, 3, -1, 1, 52.251388))
sketch1.addConstraint(Sketcher.Constraint("DistanceX", -1, 1, 25, 3, 68.137829))
sketch1.addConstraint(Sketcher.Constraint("DistanceX", 2, 1, -1, 1, 71.750509))
sketch1.addConstraint(Sketcher.Constraint("DistanceX", 38, 1, -1, 1, 69.122881))
sketch1.addConstraint(Sketcher.Constraint("DistanceY", 60, 2, -1, 1, 26.777661))
sketch1.setExpression("Constraints[127]", "Params.sketch1_radius")
sketch1.setExpression("Constraints[128]", "Params.sketch1_height")
sketch1.setExpression("Constraints[129]", "Params.sketch1_radius2")
sketch1.setExpression("Constraints[130]", "Params.sketch1_radius3")
sketch1.setExpression("Constraints[131]", "Params.sketch1_radius4")
pad1 = body.newObject("PartDesign::Pad", "Pad")
pad1.Profile = sketch1
pad1.Type = "TwoLengths"
pad1.setExpression("Length", "Params.pad1_length")
pad1.setExpression("Length2", "Params.pad1_length2")

doc.recompute()
